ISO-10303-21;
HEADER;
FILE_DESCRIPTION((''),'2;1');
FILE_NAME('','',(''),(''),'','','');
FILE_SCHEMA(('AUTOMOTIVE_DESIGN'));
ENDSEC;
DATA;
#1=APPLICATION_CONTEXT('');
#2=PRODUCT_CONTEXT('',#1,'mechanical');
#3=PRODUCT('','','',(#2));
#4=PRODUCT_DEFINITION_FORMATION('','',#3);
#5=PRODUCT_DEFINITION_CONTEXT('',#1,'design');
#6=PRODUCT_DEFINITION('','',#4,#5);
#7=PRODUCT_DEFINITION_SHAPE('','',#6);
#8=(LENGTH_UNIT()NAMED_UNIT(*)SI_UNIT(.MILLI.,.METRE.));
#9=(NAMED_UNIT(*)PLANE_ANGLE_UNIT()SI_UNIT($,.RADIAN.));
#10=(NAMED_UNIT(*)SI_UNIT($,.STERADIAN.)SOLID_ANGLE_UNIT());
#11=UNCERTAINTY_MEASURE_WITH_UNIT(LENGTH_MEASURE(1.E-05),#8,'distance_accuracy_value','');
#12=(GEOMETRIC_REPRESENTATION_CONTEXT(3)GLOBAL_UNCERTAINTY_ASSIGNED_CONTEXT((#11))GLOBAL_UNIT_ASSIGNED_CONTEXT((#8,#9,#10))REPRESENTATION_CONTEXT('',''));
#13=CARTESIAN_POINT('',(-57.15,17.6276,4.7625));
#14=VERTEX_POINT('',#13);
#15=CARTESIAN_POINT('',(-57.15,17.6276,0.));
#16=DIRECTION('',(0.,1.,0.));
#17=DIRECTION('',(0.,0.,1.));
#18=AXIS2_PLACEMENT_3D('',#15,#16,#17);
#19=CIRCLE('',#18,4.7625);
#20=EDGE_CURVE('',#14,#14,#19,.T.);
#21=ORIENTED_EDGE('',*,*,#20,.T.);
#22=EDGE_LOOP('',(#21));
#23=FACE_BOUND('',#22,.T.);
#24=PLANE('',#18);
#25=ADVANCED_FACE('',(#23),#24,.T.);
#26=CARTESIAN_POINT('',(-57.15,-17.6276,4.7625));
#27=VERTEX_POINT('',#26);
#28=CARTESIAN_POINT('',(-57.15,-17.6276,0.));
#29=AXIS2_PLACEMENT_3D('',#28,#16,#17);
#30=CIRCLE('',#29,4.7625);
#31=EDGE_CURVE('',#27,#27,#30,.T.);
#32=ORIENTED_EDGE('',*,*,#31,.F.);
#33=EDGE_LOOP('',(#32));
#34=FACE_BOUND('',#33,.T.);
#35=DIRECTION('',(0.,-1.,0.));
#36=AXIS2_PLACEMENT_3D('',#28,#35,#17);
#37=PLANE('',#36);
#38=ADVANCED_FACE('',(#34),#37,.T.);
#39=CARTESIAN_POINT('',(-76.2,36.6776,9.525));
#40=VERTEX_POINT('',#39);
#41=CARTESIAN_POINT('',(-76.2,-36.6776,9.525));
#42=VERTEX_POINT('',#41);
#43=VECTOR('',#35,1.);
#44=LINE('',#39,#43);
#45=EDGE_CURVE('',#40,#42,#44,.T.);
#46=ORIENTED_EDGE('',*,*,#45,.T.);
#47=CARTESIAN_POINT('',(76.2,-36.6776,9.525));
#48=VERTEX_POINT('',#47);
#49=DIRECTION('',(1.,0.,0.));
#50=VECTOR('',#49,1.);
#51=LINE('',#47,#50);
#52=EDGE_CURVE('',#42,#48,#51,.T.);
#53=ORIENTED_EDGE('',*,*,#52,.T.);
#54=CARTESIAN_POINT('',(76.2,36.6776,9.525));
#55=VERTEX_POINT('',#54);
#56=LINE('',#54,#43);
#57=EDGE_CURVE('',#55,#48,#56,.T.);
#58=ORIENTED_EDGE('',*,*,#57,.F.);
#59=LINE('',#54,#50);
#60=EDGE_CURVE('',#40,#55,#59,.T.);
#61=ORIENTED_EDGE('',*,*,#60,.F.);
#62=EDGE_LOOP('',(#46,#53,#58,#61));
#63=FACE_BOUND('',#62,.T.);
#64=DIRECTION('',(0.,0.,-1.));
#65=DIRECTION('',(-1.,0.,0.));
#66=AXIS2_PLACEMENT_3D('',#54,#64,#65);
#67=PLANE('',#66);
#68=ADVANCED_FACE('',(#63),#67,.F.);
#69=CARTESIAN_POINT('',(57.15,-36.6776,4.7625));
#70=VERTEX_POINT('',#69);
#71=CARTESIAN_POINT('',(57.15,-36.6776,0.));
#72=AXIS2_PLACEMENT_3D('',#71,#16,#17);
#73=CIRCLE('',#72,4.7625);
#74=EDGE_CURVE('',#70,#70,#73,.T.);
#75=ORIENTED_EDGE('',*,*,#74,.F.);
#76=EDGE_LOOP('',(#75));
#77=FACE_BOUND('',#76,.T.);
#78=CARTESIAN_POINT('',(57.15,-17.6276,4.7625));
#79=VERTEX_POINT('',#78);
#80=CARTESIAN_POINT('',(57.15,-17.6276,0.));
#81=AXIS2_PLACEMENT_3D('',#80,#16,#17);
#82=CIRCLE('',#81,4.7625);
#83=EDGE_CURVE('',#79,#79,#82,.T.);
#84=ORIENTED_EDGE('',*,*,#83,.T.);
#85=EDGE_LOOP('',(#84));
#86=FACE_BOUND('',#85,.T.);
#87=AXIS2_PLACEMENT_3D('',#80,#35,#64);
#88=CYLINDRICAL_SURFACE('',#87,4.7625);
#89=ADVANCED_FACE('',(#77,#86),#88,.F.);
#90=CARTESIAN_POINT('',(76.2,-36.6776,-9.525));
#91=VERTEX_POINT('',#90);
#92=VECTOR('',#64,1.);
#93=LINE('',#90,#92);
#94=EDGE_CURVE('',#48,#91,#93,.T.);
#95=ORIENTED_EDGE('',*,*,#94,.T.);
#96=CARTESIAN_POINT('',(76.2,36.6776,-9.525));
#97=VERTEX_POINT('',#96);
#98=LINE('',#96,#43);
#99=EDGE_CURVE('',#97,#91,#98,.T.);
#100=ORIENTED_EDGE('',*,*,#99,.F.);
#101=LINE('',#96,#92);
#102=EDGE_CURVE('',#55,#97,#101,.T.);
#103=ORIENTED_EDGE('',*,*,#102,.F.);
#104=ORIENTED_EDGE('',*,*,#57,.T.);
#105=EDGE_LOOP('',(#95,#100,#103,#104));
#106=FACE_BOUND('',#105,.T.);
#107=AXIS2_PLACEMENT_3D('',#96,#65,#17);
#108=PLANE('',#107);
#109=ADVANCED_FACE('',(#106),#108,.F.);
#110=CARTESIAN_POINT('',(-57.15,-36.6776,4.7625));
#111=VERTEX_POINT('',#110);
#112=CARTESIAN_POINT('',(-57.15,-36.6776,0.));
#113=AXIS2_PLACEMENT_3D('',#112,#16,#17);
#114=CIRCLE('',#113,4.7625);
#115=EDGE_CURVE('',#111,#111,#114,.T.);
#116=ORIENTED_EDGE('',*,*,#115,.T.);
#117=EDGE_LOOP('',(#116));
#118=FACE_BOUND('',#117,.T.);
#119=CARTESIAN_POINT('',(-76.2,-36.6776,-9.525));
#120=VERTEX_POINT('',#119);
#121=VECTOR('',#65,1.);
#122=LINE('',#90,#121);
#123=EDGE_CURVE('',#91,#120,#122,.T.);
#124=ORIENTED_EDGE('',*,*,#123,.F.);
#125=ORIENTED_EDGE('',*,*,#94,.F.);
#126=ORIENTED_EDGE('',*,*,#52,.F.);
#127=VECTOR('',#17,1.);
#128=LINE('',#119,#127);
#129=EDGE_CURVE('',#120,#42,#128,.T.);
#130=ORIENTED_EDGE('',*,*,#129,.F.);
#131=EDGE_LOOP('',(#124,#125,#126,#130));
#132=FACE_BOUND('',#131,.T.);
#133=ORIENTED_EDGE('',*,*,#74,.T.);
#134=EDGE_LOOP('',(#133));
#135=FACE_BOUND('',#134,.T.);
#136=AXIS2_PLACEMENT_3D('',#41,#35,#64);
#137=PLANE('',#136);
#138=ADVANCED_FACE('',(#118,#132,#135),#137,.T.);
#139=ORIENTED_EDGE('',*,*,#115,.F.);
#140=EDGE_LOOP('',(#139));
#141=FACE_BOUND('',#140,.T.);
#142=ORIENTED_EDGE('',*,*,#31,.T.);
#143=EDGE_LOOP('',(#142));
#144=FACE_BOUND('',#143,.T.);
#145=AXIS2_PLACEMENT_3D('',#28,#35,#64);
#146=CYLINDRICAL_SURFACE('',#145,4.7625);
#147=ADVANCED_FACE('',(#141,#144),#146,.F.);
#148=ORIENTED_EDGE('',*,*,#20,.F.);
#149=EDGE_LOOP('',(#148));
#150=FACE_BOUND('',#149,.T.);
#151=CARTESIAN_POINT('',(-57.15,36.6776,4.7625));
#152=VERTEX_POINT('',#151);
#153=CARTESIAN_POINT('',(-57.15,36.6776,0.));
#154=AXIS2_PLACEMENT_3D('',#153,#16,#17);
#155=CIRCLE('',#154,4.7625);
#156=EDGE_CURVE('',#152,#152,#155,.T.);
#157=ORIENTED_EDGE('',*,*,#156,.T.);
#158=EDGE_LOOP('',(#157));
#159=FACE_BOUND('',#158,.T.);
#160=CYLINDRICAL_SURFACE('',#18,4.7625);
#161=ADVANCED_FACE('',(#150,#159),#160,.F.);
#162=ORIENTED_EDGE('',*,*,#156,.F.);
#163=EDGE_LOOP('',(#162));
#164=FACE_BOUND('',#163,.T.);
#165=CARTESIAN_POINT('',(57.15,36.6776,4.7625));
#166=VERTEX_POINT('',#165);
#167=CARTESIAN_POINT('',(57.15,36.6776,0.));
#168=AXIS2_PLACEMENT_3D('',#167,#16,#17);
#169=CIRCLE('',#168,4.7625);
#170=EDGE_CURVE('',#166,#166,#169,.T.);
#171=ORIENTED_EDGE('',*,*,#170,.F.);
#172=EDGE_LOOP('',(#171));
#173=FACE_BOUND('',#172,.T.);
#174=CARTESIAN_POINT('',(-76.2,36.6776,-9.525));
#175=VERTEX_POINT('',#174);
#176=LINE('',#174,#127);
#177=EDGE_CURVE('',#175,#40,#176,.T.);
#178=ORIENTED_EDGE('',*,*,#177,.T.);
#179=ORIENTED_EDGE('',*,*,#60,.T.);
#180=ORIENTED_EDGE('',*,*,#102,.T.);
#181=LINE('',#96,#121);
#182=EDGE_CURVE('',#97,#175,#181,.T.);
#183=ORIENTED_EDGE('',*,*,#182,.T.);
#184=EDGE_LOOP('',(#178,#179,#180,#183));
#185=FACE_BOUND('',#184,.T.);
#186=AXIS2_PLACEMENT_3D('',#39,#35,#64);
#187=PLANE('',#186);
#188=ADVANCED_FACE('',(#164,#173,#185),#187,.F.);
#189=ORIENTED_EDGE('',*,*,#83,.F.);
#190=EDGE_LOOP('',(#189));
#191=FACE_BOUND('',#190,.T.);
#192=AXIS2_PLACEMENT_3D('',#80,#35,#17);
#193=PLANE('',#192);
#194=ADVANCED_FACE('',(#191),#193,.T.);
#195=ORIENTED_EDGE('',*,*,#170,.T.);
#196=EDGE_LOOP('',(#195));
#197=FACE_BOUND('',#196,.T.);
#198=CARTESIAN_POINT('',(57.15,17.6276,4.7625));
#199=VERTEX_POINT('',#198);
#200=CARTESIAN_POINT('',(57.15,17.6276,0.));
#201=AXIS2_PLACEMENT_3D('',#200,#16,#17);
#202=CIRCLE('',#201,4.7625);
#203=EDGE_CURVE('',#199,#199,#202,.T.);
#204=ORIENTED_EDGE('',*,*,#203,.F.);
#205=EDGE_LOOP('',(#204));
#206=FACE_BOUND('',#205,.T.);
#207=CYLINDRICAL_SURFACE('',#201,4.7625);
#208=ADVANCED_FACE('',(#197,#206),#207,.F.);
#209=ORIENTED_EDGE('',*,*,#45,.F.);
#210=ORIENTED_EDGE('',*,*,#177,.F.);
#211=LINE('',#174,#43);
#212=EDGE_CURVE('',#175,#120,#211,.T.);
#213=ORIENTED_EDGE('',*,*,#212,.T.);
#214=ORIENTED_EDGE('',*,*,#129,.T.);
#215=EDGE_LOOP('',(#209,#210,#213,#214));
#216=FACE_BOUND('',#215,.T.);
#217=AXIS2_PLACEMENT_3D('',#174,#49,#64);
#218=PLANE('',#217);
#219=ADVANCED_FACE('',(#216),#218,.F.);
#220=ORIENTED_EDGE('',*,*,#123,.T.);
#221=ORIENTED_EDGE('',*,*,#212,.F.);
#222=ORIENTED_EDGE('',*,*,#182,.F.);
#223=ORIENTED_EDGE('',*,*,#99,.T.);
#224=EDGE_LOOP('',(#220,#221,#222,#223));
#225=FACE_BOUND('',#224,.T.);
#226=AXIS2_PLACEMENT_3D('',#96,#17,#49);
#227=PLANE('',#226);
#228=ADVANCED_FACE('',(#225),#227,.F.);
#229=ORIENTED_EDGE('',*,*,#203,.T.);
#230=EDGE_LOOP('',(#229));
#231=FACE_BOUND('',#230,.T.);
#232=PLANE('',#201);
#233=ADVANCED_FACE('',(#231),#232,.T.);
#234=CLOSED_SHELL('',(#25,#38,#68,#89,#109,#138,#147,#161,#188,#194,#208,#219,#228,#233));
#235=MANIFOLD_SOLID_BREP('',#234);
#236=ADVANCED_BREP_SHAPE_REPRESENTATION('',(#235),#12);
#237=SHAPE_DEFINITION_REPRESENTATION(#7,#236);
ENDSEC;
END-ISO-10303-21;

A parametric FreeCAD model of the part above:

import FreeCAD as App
import Part
import Sketcher

V = App.Vector
Q = App.Units.Quantity


def add_polygon(sketch, points):
    """Adds a closed chain of lines whose ends are joined by coincident constraints."""
    first, n = sketch.GeometryCount, len(points)
    for a, b in zip(points, points[1:] + points[:1]):
        sketch.addGeometry(Part.LineSegment(App.Vector(*a, 0), App.Vector(*b, 0)), False)
    for i in range(n):
        sketch.addConstraint(Sketcher.Constraint("Coincident", first + i, 2, first + (i + 1) % n, 1))

doc = App.newDocument("Part")
params = doc.addObject("Spreadsheet::Sheet", "Params")
for row, (alias, value) in enumerate([
    ("sketch1_width", "6 in"),
    ("sketch1_height", "0.75 in"),
    ("pad1_length", "2.888 in"),
    ("sketch2_diameter", "0.375 in"),
    ("pocket1_length", "0.75 in"),
], start=1):
    params.set(f"A{row}", alias)
    params.set(f"B{row}", "=" + value)
    params.setAlias(f"B{row}", alias)

body = doc.addObject("PartDesign::Body", "Body")

sketch1 = body.newObject("Sketcher::SketchObject", "Sketch")
sketch1.AttachmentSupport = (doc.getObject("XZ_Plane"), [""])
sketch1.MapMode = "FlatFace"
add_polygon(sketch1, [(-76, -10), (-76, 10), (76, 10), (76, -10)])
sketch1.addConstraint([
    Sketcher.Constraint("Vertical", 0),
    Sketcher.Constraint("Horizontal", 1),
    Sketcher.Constraint("Vertical", 2),
    Sketcher.Constraint("Horizontal", 3),
    Sketcher.Constraint("Symmetric", 0, 2, 2, 2, -1, 1),
    Sketcher.Constraint("DistanceX", 1, 1, 1, 2, Q("6 in")),
    Sketcher.Constraint("DistanceY", 0, 1, 0, 2, Q("0.75 in")),
])
sketch1.setExpression("Constraints[9]", "Params.sketch1_width")
sketch1.setExpression("Constraints[10]", "Params.sketch1_height")
pad1 = body.newObject("PartDesign::Pad", "Pad")
pad1.Profile = sketch1
pad1.setExpression("Length", "Params.pad1_length")
pad1.Midplane = True

sketch2 = body.newObject("Sketcher::SketchObject", "Sketch001")
sketch2.AttachmentSupport = (doc.getObject("XZ_Plane"), [""])
sketch2.MapMode = "FlatFace"
sketch2.AttachmentOffset = App.Placement(V(0, 0, -1.444 * 25.4), App.Rotation())
sketch2.addGeometry([
    Part.Circle(V(-57.1, 0, 0), V(0, 0, 1), 4.8),
    Part.Circle(V(57.1, 0, 0), V(0, 0, 1), 4.8),
], False)
sketch2.addConstraint([
    Sketcher.Constraint("Equal", 0, 1),
    Sketcher.Constraint("Symmetric", 0, 3, 1, 3, -1, 1),
    Sketcher.Constraint("PointOnObject", 0, 3, -1),
    Sketcher.Constraint("Diameter", 0, Q("0.375 in")),
    Sketcher.Constraint("DistanceX", 0, 3, 1, 3, Q("4.5 in")),
])
sketch2.setExpression("Constraints[3]", "Params.sketch2_diameter")
pocket1 = body.newObject("PartDesign::Pocket", "Pocket")
pocket1.Profile = sketch2
pocket1.setExpression("Length", "Params.pocket1_length")
pocket1.Reversed = True
doc.recompute()

mirrored = body.newObject("PartDesign::Mirrored", "Mirrored")
mirrored.Originals = [pocket1]
mirrored.MirrorPlane = (doc.getObject("XZ_Plane"), [""])
body.Tip = mirrored

doc.recompute()
